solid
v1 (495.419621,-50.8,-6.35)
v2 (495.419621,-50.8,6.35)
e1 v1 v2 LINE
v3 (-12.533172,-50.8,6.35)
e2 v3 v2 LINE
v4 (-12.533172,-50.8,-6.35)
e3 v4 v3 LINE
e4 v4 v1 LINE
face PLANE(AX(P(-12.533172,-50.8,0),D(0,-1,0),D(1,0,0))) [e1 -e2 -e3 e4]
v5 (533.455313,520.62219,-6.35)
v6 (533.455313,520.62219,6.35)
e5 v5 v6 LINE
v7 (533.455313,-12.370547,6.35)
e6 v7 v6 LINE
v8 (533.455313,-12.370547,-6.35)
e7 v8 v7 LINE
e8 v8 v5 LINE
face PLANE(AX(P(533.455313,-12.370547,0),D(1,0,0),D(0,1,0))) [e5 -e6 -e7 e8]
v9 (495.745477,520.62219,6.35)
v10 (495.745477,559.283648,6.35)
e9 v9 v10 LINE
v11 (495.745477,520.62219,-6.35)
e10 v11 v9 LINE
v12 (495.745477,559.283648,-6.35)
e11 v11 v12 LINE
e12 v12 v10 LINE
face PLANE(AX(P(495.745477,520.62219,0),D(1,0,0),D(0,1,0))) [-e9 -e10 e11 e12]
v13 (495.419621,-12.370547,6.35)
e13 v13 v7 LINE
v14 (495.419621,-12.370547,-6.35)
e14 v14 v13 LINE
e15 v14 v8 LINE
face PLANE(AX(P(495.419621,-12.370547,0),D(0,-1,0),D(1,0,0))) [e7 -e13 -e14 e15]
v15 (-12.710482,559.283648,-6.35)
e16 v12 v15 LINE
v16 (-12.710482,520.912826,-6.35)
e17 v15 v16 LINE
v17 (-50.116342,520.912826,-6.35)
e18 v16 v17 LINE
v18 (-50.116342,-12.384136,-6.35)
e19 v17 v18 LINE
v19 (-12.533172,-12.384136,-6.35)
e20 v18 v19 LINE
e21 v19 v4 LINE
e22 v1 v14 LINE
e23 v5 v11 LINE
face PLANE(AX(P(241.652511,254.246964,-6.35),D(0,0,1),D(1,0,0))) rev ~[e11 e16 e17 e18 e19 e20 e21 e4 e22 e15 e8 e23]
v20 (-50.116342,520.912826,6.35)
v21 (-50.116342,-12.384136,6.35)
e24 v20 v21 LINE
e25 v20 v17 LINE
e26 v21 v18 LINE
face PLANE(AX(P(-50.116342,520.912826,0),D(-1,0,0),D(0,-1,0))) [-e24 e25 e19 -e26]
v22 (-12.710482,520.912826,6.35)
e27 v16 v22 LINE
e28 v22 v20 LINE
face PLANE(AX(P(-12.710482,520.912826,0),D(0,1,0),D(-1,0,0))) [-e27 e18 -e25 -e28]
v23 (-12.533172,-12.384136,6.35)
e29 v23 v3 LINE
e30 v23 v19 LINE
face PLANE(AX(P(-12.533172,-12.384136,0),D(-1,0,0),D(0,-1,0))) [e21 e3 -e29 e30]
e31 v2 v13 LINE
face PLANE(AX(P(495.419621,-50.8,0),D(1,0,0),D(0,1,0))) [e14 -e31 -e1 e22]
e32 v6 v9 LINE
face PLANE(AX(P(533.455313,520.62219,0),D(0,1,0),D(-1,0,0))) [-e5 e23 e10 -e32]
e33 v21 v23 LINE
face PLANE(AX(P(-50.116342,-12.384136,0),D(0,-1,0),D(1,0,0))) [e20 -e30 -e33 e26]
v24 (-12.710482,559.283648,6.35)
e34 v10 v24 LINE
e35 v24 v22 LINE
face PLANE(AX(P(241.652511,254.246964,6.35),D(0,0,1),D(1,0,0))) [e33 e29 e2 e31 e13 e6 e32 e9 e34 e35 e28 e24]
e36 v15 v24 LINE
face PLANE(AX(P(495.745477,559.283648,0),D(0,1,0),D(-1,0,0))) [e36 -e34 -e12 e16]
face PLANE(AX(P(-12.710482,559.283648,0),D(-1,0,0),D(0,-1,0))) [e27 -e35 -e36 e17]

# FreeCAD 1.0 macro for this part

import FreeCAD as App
import Part
import Sketcher
from FreeCAD import Vector
Q = App.Units.Quantity

doc = App.newDocument("Part")
params = doc.addObject("Spreadsheet::Sheet", "Params")
for row, (alias, value) in enumerate([
    ("pad1_length", "0.5 in"),
], start=1):
    params.set(f"A{row}", alias)
    params.set(f"B{row}", "=" + value)
    params.setAlias(f"B{row}", alias)

body = doc.addObject("PartDesign::Body", "Body")

# Sketch on XY plane
sketch1 = body.newObject("Sketcher::SketchObject", "Sketch")
sketch1.AttachmentSupport = (doc.getObject("XY_Plane"), [""])
sketch1.MapMode = "FlatFace"
sketch1.addGeometry([
    Part.LineSegment(Vector(-13, -12, 0), Vector(-13, -51, 0)),  # 0
    Part.LineSegment(Vector(-13, -51, 0), Vector(495, -51, 0)),  # 1
    Part.LineSegment(Vector(495, -51, 0), Vector(495, -12, 0)),  # 2
    Part.LineSegment(Vector(495, -12, 0), Vector(533, -12, 0)),  # 3
    Part.LineSegment(Vector(533, -12, 0), Vector(533, 521, 0)),  # 4
    Part.LineSegment(Vector(533, 521, 0), Vector(496, 521, 0)),  # 5
    Part.LineSegment(Vector(496, 521, 0), Vector(496, 559, 0)),  # 6
    Part.LineSegment(Vector(496, 559, 0), Vector(-13, 559, 0)),  # 7
    Part.LineSegment(Vector(-13, 559, 0), Vector(-13, 521, 0)),  # 8
    Part.LineSegment(Vector(-13, 521, 0), Vector(-50, 521, 0)),  # 9
    Part.LineSegment(Vector(-50, 521, 0), Vector(-50, -12, 0)),  # 10
    Part.LineSegment(Vector(-50, -12, 0), Vector(-13, -12, 0)),  # 11
], False)
sketch1.addConstraint([
    Sketcher.Constraint("Coincident", 0, 2, 1, 1),
    Sketcher.Constraint("Coincident", 1, 2, 2, 1),
    Sketcher.Constraint("Coincident", 2, 2, 3, 1),
    Sketcher.Constraint("Coincident", 3, 2, 4, 1),
    Sketcher.Constraint("Coincident", 4, 2, 5, 1),
    Sketcher.Constraint("Coincident", 5, 2, 6, 1),
    Sketcher.Constraint("Coincident", 6, 2, 7, 1),
    Sketcher.Constraint("Coincident", 7, 2, 8, 1),
    Sketcher.Constraint("Coincident", 8, 2, 9, 1),
    Sketcher.Constraint("Coincident", 9, 2, 10, 1),
    Sketcher.Constraint("Coincident", 10, 2, 11, 1),
    Sketcher.Constraint("Coincident", 11, 2, 0, 1),
    Sketcher.Constraint("Vertical", 0),
    Sketcher.Constraint("Horizontal", 1),
    Sketcher.Constraint("Vertical", 2),
    Sketcher.Constraint("Horizontal", 3),
    Sketcher.Constraint("Vertical", 4),
    Sketcher.Constraint("Horizontal", 5),
    Sketcher.Constraint("Vertical", 6),
    Sketcher.Constraint("Horizontal", 7),
    Sketcher.Constraint("Vertical", 8),
    Sketcher.Constraint("Horizontal", 9),
    Sketcher.Constraint("Vertical", 10),
    Sketcher.Constraint("Horizontal", 11),
    Sketcher.Constraint("DistanceY", 0, 2, -1, 1, Q("2 in")),
    Sketcher.Constraint("DistanceX", 7, 2, 7, 1, 508.455959),
    Sketcher.Constraint("DistanceX", 9, 2, 9, 1, 37.40586),
    Sketcher.Constraint("DistanceX", 11, 1, 11, 2, 37.58317),
    Sketcher.Constraint("DistanceY", 8, 2, 8, 1, 38.370822),
    Sketcher.Constraint("DistanceY", 10, 2, 10, 1, 533.296962),
    Sketcher.Constraint("DistanceX", 1, 1, 1, 2, 507.952793),
    Sketcher.Constraint("DistanceX", 3, 1, 3, 2, 38.035692),
    Sketcher.Constraint("DistanceY", 0, 2, 0, 1, 38.415864),
    Sketcher.Constraint("DistanceY", 2, 1, 2, 2, 38.429453),
    Sketcher.Constraint("DistanceY", 4, 1, 4, 2, 532.992737),
    Sketcher.Constraint("DistanceX", -1, 1, 1, 2, 495.419621),
])
pad1 = body.newObject("PartDesign::Pad", "Pad")
pad1.Profile = sketch1
pad1.setExpression("Length", "Params.pad1_length")
pad1.Midplane = True

doc.recompute()
